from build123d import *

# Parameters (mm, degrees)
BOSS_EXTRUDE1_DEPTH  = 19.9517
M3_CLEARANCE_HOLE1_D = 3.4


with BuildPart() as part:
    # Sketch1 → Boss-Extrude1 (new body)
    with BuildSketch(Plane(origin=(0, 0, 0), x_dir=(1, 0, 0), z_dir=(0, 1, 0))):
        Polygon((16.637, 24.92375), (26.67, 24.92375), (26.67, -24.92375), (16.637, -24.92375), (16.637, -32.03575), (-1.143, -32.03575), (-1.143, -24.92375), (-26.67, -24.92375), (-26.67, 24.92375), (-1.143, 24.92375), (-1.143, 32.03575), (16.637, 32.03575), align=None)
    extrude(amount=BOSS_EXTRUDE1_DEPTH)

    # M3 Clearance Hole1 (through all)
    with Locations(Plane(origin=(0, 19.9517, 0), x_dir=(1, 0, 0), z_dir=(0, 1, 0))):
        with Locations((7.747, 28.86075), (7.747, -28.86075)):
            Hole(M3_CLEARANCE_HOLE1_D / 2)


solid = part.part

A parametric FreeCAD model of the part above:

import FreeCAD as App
import Part
import Sketcher

V = App.Vector
Q = App.Units.Quantity


def add_polygon(sketch, points):
    """Adds a closed chain of lines whose ends are joined by coincident constraints."""
    first, n = sketch.GeometryCount, len(points)
    for a, b in zip(points, points[1:] + points[:1]):
        sketch.addGeometry(Part.LineSegment(App.Vector(*a, 0), App.Vector(*b, 0)), False)
    for i in range(n):
        sketch.addConstraint(Sketcher.Constraint("Coincident", first + i, 2, first + (i + 1) % n, 1))

doc = App.newDocument("Part")
body = doc.addObject("PartDesign::Body", "Body")

# Sketch on XZ plane
sketch1 = body.newObject("Sketcher::SketchObject", "Sketch")
sketch1.AttachmentSupport = (doc.getObject("XZ_Plane"), [""])
sketch1.MapMode = "FlatFace"
add_polygon(sketch1, [(26.67, -24.92375), (16.637, -24.92375), (16.637, -32.03575), (-1.143, -32.03575), (-1.143, -24.92375), (-26.67, -24.92375), (-26.67, 24.92375), (-1.143, 24.92375), (-1.143, 32.03575), (16.637, 32.03575), (16.637, 24.92375), (26.67, 24.92375)])  # lines 0-11
sketch1.addConstraint([
    Sketcher.Constraint("Horizontal", 0),
    Sketcher.Constraint("Vertical", 1),
    Sketcher.Constraint("Horizontal", 2),
    Sketcher.Constraint("Vertical", 3),
    Sketcher.Constraint("Horizontal", 4),
    Sketcher.Constraint("Vertical", 5),
    Sketcher.Constraint("Horizontal", 6),
    Sketcher.Constraint("Vertical", 7),
    Sketcher.Constraint("Horizontal", 8),
    Sketcher.Constraint("Vertical", 9),
    Sketcher.Constraint("Horizontal", 10),
    Sketcher.Constraint("Vertical", 11),
    Sketcher.Constraint("Symmetric", 4, 2, 10, 2, -1, 1),
    Sketcher.Constraint("Symmetric", 3, 2, 6, 2, -1),
    Sketcher.Constraint("Symmetric", 1, 2, 8, 2, -1),
    Sketcher.Constraint("Horizontal", 0, 2, 3, 2),
    Sketcher.Constraint("DistanceX", 2, 2, 2, 1, Q("0.7 in")),
    Sketcher.Constraint("DistanceY", 1, 2, 1, 1, Q("0.28 in")),
    Sketcher.Constraint("DistanceX", 0, 2, 0, 1, Q("0.395 in")),
    Sketcher.Constraint("DistanceX", 4, 2, 4, 1, Q("1.005 in")),
    Sketcher.Constraint("DistanceY", 5, 1, 5, 2, Q("1.9625 in")),
])
pad1 = body.newObject("PartDesign::Pad", "Pad")
pad1.Profile = sketch1
pad1.Length = Q("0.7855 in")
pad1.Reversed = True

# Sketch on XZ plane
sketch2 = body.newObject("Sketcher::SketchObject", "Sketch001")
sketch2.AttachmentSupport = (doc.getObject("XZ_Plane"), [""])
sketch2.MapMode = "FlatFace"
sketch2.AttachmentOffset = App.Placement(V(0, 0, -0.7855 * 25.4), App.Rotation())
sketch2.addGeometry([
    Part.Circle(V(7.747, -28.86075, 0), V(0, 0, 1), 1.7),
    Part.Circle(V(7.747, 28.86075, 0), V(0, 0, 1), 1.7),
], False)
sketch2.addConstraint([
    Sketcher.Constraint("Equal", 0, 1),
    Sketcher.Constraint("Symmetric", 0, 3, 1, 3, -1),
    Sketcher.Constraint("Diameter", 0, 3.4),
    Sketcher.Constraint("DistanceX", -1, 1, 0, 3, Q("0.305 in")),
    Sketcher.Constraint("DistanceY", 0, 3, 1, 3, Q("2.2725 in")),
])
doc.recompute()
hole = body.newObject("PartDesign::Hole", "Hole")
hole.Profile = sketch2
hole.ThreadType = "None"
hole.Diameter = 3.4
hole.DepthType = "ThroughAll"
hole.Reversed = True

doc.recompute()
